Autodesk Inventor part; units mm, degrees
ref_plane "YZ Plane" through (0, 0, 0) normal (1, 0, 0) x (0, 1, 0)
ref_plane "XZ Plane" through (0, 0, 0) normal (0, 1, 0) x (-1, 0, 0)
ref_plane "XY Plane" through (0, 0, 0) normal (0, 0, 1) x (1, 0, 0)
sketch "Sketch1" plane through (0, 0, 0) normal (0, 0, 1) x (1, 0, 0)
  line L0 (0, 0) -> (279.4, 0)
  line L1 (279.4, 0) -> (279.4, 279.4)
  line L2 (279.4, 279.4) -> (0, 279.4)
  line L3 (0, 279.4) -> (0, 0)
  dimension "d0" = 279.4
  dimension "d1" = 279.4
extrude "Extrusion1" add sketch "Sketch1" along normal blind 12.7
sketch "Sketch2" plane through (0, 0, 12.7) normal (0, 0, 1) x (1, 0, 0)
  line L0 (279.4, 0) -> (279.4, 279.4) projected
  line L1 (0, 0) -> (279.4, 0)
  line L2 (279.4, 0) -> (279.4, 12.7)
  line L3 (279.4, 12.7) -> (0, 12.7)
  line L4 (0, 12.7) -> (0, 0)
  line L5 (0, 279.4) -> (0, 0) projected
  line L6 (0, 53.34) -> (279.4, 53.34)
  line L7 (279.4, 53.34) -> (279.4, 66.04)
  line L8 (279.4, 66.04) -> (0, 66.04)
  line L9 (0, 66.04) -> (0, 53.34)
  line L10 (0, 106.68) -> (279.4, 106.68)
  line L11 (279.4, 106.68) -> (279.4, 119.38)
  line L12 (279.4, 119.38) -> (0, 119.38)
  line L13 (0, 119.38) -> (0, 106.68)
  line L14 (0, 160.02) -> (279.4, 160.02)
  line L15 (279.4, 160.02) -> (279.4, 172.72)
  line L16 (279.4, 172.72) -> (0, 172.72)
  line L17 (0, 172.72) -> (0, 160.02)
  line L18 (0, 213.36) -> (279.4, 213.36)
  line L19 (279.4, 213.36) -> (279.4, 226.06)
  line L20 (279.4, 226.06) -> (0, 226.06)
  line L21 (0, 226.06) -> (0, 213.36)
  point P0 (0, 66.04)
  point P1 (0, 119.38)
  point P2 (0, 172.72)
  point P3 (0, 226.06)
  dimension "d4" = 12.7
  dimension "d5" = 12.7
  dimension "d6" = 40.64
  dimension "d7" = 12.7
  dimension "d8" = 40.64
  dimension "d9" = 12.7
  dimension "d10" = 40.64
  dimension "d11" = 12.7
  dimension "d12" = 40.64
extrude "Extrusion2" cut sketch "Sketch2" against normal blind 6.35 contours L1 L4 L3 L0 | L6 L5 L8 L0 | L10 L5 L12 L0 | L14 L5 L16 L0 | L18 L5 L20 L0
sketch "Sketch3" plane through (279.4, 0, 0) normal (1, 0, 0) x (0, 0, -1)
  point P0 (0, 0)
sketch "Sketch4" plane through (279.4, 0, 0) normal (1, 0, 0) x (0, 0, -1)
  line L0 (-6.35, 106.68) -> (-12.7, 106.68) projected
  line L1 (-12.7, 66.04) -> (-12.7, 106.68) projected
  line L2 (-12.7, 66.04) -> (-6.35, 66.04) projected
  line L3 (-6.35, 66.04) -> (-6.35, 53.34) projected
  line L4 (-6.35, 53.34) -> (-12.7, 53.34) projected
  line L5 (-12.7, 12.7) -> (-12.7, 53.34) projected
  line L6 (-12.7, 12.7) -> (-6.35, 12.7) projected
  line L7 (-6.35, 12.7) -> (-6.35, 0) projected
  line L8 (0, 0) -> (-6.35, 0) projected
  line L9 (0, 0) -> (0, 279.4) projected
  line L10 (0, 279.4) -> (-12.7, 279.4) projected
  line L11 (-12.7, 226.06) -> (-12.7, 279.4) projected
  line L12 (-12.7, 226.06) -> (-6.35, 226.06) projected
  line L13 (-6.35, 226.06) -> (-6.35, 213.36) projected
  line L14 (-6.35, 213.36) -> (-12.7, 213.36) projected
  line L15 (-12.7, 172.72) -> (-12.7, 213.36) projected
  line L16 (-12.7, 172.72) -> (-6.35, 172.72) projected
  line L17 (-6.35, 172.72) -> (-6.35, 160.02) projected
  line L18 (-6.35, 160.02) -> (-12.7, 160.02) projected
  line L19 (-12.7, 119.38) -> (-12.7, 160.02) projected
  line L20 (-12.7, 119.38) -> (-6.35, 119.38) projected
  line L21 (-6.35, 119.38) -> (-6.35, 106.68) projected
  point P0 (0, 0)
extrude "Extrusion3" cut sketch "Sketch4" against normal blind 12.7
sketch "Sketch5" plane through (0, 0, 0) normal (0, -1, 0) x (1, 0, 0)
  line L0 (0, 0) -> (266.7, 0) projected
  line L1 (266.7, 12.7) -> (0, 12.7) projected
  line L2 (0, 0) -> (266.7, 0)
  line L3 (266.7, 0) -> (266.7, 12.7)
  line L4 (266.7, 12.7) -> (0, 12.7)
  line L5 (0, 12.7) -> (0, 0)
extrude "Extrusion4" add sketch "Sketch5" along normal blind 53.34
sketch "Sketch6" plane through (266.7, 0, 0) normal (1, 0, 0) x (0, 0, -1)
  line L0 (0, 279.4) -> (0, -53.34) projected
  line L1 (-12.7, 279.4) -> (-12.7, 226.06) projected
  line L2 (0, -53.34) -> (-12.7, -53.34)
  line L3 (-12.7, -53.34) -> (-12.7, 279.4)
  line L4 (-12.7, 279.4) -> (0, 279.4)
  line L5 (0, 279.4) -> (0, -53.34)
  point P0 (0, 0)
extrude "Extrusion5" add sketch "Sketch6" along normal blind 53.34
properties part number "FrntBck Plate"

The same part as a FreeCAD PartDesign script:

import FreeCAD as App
import Part
import Sketcher

V = App.Vector
Q = App.Units.Quantity


def add_polygon(sketch, points):
    """Adds a closed chain of lines whose ends are joined by coincident constraints."""
    first, n = sketch.GeometryCount, len(points)
    for a, b in zip(points, points[1:] + points[:1]):
        sketch.addGeometry(Part.LineSegment(App.Vector(*a, 0), App.Vector(*b, 0)), False)
    for i in range(n):
        sketch.addConstraint(Sketcher.Constraint("Coincident", first + i, 2, first + (i + 1) % n, 1))

doc = App.newDocument("Part")
params = doc.addObject("Spreadsheet::Sheet", "Params")
for row, (alias, value) in enumerate([
    ("sketch1_width", "11 in"),
    ("pad1_length", "0.5 in"),
    ("sketch2_height", "0.5 in"),
    ("sketch2_width", "11 in"),
    ("pocket1_length", "0.25 in"),
    ("sketch3_width", "11 in"),
    ("sketch3_width2", "0.5 in"),
    ("sketch3_width3", "1.6 in"),
    ("pocket2_length", "0.5 in"),
    ("sketch4_width", "10.5 in"),
    ("sketch4_height", "0.5 in"),
    ("pad2_length", "2.1 in"),
    ("sketch5_width", "13.1 in"),
    ("sketch5_height", "0.5 in"),
    ("pad3_length", "2.1 in"),
], start=1):
    params.set(f"A{row}", alias)
    params.set(f"B{row}", "=" + value)
    params.setAlias(f"B{row}", alias)

body = doc.addObject("PartDesign::Body", "Body")

# Sketch on XY plane
sketch1 = doc.addObject("Sketcher::SketchObject", "Sketch")
body.addObject(sketch1)
sketch1.AttachmentSupport = (doc.XY_Plane, [""])
sketch1.MapMode = "FlatFace"
add_polygon(sketch1, [(0, 279), (0, 0), (279, 0), (279, 279)])  # lines 0-3
sketch1.addConstraint([
    Sketcher.Constraint("Vertical", 0),
    Sketcher.Constraint("Horizontal", 1),
    Sketcher.Constraint("Vertical", 2),
    Sketcher.Constraint("Horizontal", 3),
    Sketcher.Constraint("Coincident", 0, 2, -1, 1),
    Sketcher.Constraint("Equal", 3, 0),
    Sketcher.Constraint("DistanceX", 1, 1, 1, 2, Q("11 in")),
])
sketch1.setExpression("Constraints[10]", "Params.sketch1_width")
pad1 = doc.addObject("PartDesign::Pad", "Pad")
body.addObject(pad1)
pad1.Profile = sketch1
pad1.setExpression("Length", "Params.pad1_length")

# Sketch on XY plane
sketch2 = doc.addObject("Sketcher::SketchObject", "Sketch001")
body.addObject(sketch2)
sketch2.AttachmentSupport = (doc.XY_Plane, [""])
sketch2.MapMode = "FlatFace"
sketch2.AttachmentOffset = App.Placement(V(0, 0, 0.5 * 25.4), App.Rotation())
add_polygon(sketch2, [(0, 0), (279, 0), (279, 13), (0, 13)])  # lines 0-3
add_polygon(sketch2, [(0, 53), (279, 53), (279, 66), (0, 66)])  # lines 4-7
add_polygon(sketch2, [(0, 107), (279, 107), (279, 119), (0, 119)])  # lines 8-11
add_polygon(sketch2, [(0, 160), (279, 160), (279, 173), (0, 173)])  # lines 12-15
add_polygon(sketch2, [(0, 213), (279, 213), (279, 226), (0, 226)])  # lines 16-19
sketch2.addConstraint([
    Sketcher.Constraint("Horizontal", 0),
    Sketcher.Constraint("Vertical", 1),
    Sketcher.Constraint("Horizontal", 2),
    Sketcher.Constraint("Vertical", 3),
    Sketcher.Constraint("Horizontal", 4),
    Sketcher.Constraint("Vertical", 5),
    Sketcher.Constraint("Horizontal", 6),
    Sketcher.Constraint("Vertical", 7),
    Sketcher.Constraint("Horizontal", 8),
    Sketcher.Constraint("Vertical", 9),
    Sketcher.Constraint("Horizontal", 10),
    Sketcher.Constraint("Vertical", 11),
    Sketcher.Constraint("Horizontal", 12),
    Sketcher.Constraint("Vertical", 13),
    Sketcher.Constraint("Horizontal", 14),
    Sketcher.Constraint("Vertical", 15),
    Sketcher.Constraint("Horizontal", 16),
    Sketcher.Constraint("Vertical", 17),
    Sketcher.Constraint("Horizontal", 18),
    Sketcher.Constraint("Vertical", 19),
    Sketcher.Constraint("Coincident", 3, 2, -1, 1),
    Sketcher.Constraint("PointOnObject", 6, 2, -2),
    Sketcher.Constraint("PointOnObject", 10, 2, -2),
    Sketcher.Constraint("PointOnObject", 14, 2, -2),
    Sketcher.Constraint("PointOnObject", 18, 2, -2),
    Sketcher.Constraint("Vertical", 1, 2, 4, 2),
    Sketcher.Constraint("Vertical", 5, 2, 8, 2),
    Sketcher.Constraint("Vertical", 9, 2, 12, 2),
    Sketcher.Constraint("Vertical", 13, 2, 16, 2),
    Sketcher.Constraint("Equal", 3, 5),
    Sketcher.Constraint("Equal", 7, 9),
    Sketcher.Constraint("Equal", 11, 13),
    Sketcher.Constraint("Equal", 15, 17),
    Sketcher.Constraint("DistanceY", 1, 1, 1, 2, Q("0.5 in")),
    Sketcher.Constraint("DistanceY", 1, 2, 4, 2, Q("1.6 in")),
    Sketcher.Constraint("DistanceY", 5, 2, 8, 2, Q("1.6 in")),
    Sketcher.Constraint("DistanceY", 9, 2, 12, 2, Q("1.6 in")),
    Sketcher.Constraint("DistanceY", 13, 2, 16, 2, Q("1.6 in")),
    Sketcher.Constraint("DistanceX", 0, 1, 0, 2, Q("11 in")),
])
sketch2.setExpression("Constraints[53]", "Params.sketch2_height")
sketch2.setExpression("Constraints[58]", "Params.sketch2_width")
pocket1 = doc.addObject("PartDesign::Pocket", "Pocket")
body.addObject(pocket1)
pocket1.Profile = sketch2
pocket1.setExpression("Length", "Params.pocket1_length")

# Sketch on YZ plane
sketch3 = doc.addObject("Sketcher::SketchObject", "Sketch002")
body.addObject(sketch3)
sketch3.AttachmentSupport = (doc.YZ_Plane, [""])
sketch3.MapMode = "FlatFace"
sketch3.AttachmentOffset = App.Placement(V(0, 0, 11 * 25.4), App.Rotation())
add_polygon(sketch3, [(119, 6), (107, 6), (107, 13), (66, 13), (66, 6), (53, 6), (53, 13), (13, 13), (13, 6), (0, 6), (0, 0), (279, 0), (279, 13), (226, 13), (226, 6), (213, 6), (213, 13), (173, 13), (173, 6), (160, 6), (160, 13), (119, 13)])  # lines 0-21
sketch3.addConstraint([
    Sketcher.Constraint("Horizontal", 0),
    Sketcher.Constraint("Vertical", 1),
    Sketcher.Constraint("Horizontal", 2),
    Sketcher.Constraint("Vertical", 3),
    Sketcher.Constraint("Horizontal", 4),
    Sketcher.Constraint("Vertical", 5),
    Sketcher.Constraint("Horizontal", 6),
    Sketcher.Constraint("Vertical", 7),
    Sketcher.Constraint("Horizontal", 8),
    Sketcher.Constraint("Vertical", 9),
    Sketcher.Constraint("Horizontal", 10),
    Sketcher.Constraint("Vertical", 11),
    Sketcher.Constraint("Horizontal", 12),
    Sketcher.Constraint("Vertical", 13),
    Sketcher.Constraint("Horizontal", 14),
    Sketcher.Constraint("Vertical", 15),
    Sketcher.Constraint("Horizontal", 16),
    Sketcher.Constraint("Vertical", 17),
    Sketcher.Constraint("Horizontal", 18),
    Sketcher.Constraint("Vertical", 19),
    Sketcher.Constraint("Horizontal", 20),
    Sketcher.Constraint("Vertical", 21),
    Sketcher.Constraint("Coincident", 9, 2, -1, 1),
    Sketcher.Constraint("Horizontal", 0, 2, 3, 2),
    Sketcher.Constraint("Horizontal", 2, 2, 5, 2),
    Sketcher.Constraint("Horizontal", 4, 2, 7, 2),
    Sketcher.Constraint("Horizontal", 6, 2, 11, 2),
    Sketcher.Constraint("Horizontal", 8, 2, 13, 2),
    Sketcher.Constraint("Horizontal", 12, 2, 15, 2),
    Sketcher.Constraint("Horizontal", 14, 2, 17, 2),
    Sketcher.Constraint("Horizontal", 16, 2, 19, 2),
    Sketcher.Constraint("Equal", 0, 4),
    Sketcher.Constraint("Equal", 2, 6),
    Sketcher.Constraint("Equal", 4, 8),
    Sketcher.Constraint("Equal", 8, 14),
    Sketcher.Constraint("Equal", 6, 16),
    Sketcher.Constraint("Equal", 14, 18),
    Sketcher.Constraint("Equal", 16, 20),
    Sketcher.Constraint("Equal", 7, 9),
    Sketcher.Constraint("Equal", 18, 11),
    Sketcher.Constraint("DistanceX", 10, 1, 10, 2, Q("11 in")),
    Sketcher.Constraint("DistanceX", 0, 2, 0, 1, Q("0.5 in")),
    Sketcher.Constraint("DistanceX", 2, 2, 2, 1, Q("1.6 in")),
])
sketch3.setExpression("Constraints[62]", "Params.sketch3_width")
sketch3.setExpression("Constraints[63]", "Params.sketch3_width2")
sketch3.setExpression("Constraints[64]", "Params.sketch3_width3")
pocket2 = doc.addObject("PartDesign::Pocket", "Pocket001")
body.addObject(pocket2)
pocket2.Profile = sketch3
pocket2.setExpression("Length", "Params.pocket2_length")

# Sketch on XZ plane
sketch4 = doc.addObject("Sketcher::SketchObject", "Sketch003")
body.addObject(sketch4)
sketch4.AttachmentSupport = (doc.XZ_Plane, [""])
sketch4.MapMode = "FlatFace"
add_polygon(sketch4, [(0, 13), (0, 0), (267, 0), (267, 13)])  # lines 0-3
sketch4.addConstraint([
    Sketcher.Constraint("Vertical", 0),
    Sketcher.Constraint("Horizontal", 1),
    Sketcher.Constraint("Vertical", 2),
    Sketcher.Constraint("Horizontal", 3),
    Sketcher.Constraint("Coincident", 0, 2, -1, 1),
    Sketcher.Constraint("DistanceX", 1, 1, 1, 2, Q("10.5 in")),
    Sketcher.Constraint("DistanceY", 0, 2, 0, 1, Q("0.5 in")),
])
sketch4.setExpression("Constraints[9]", "Params.sketch4_width")
sketch4.setExpression("Constraints[10]", "Params.sketch4_height")
pad2 = doc.addObject("PartDesign::Pad", "Pad001")
body.addObject(pad2)
pad2.Profile = sketch4
pad2.setExpression("Length", "Params.pad2_length")

# Sketch on YZ plane
sketch5 = doc.addObject("Sketcher::SketchObject", "Sketch004")
body.addObject(sketch5)
sketch5.AttachmentSupport = (doc.YZ_Plane, [""])
sketch5.MapMode = "FlatFace"
sketch5.AttachmentOffset = App.Placement(V(0, 0, 10.5 * 25.4), App.Rotation())
add_polygon(sketch5, [(-53, 0), (279, 0), (279, 13), (-53, 13)])  # lines 0-3
sketch5.addConstraint([
    Sketcher.Constraint("Horizontal", 0),
    Sketcher.Constraint("Vertical", 1),
    Sketcher.Constraint("Horizontal", 2),
    Sketcher.Constraint("Vertical", 3),
    Sketcher.Constraint("PointOnObject", 0, 2, -1),
    Sketcher.Constraint("DistanceX", 0, 1, 0, 2, Q("13.1 in")),
    Sketcher.Constraint("DistanceY", 1, 1, 1, 2, Q("0.5 in")),
    Sketcher.Constraint("DistanceX", -1, 1, 0, 2, Q("11 in")),
])
sketch5.setExpression("Constraints[9]", "Params.sketch5_width")
sketch5.setExpression("Constraints[10]", "Params.sketch5_height")
pad3 = doc.addObject("PartDesign::Pad", "Pad002")
body.addObject(pad3)
pad3.Profile = sketch5
pad3.setExpression("Length", "Params.pad3_length")

doc.recompute()
